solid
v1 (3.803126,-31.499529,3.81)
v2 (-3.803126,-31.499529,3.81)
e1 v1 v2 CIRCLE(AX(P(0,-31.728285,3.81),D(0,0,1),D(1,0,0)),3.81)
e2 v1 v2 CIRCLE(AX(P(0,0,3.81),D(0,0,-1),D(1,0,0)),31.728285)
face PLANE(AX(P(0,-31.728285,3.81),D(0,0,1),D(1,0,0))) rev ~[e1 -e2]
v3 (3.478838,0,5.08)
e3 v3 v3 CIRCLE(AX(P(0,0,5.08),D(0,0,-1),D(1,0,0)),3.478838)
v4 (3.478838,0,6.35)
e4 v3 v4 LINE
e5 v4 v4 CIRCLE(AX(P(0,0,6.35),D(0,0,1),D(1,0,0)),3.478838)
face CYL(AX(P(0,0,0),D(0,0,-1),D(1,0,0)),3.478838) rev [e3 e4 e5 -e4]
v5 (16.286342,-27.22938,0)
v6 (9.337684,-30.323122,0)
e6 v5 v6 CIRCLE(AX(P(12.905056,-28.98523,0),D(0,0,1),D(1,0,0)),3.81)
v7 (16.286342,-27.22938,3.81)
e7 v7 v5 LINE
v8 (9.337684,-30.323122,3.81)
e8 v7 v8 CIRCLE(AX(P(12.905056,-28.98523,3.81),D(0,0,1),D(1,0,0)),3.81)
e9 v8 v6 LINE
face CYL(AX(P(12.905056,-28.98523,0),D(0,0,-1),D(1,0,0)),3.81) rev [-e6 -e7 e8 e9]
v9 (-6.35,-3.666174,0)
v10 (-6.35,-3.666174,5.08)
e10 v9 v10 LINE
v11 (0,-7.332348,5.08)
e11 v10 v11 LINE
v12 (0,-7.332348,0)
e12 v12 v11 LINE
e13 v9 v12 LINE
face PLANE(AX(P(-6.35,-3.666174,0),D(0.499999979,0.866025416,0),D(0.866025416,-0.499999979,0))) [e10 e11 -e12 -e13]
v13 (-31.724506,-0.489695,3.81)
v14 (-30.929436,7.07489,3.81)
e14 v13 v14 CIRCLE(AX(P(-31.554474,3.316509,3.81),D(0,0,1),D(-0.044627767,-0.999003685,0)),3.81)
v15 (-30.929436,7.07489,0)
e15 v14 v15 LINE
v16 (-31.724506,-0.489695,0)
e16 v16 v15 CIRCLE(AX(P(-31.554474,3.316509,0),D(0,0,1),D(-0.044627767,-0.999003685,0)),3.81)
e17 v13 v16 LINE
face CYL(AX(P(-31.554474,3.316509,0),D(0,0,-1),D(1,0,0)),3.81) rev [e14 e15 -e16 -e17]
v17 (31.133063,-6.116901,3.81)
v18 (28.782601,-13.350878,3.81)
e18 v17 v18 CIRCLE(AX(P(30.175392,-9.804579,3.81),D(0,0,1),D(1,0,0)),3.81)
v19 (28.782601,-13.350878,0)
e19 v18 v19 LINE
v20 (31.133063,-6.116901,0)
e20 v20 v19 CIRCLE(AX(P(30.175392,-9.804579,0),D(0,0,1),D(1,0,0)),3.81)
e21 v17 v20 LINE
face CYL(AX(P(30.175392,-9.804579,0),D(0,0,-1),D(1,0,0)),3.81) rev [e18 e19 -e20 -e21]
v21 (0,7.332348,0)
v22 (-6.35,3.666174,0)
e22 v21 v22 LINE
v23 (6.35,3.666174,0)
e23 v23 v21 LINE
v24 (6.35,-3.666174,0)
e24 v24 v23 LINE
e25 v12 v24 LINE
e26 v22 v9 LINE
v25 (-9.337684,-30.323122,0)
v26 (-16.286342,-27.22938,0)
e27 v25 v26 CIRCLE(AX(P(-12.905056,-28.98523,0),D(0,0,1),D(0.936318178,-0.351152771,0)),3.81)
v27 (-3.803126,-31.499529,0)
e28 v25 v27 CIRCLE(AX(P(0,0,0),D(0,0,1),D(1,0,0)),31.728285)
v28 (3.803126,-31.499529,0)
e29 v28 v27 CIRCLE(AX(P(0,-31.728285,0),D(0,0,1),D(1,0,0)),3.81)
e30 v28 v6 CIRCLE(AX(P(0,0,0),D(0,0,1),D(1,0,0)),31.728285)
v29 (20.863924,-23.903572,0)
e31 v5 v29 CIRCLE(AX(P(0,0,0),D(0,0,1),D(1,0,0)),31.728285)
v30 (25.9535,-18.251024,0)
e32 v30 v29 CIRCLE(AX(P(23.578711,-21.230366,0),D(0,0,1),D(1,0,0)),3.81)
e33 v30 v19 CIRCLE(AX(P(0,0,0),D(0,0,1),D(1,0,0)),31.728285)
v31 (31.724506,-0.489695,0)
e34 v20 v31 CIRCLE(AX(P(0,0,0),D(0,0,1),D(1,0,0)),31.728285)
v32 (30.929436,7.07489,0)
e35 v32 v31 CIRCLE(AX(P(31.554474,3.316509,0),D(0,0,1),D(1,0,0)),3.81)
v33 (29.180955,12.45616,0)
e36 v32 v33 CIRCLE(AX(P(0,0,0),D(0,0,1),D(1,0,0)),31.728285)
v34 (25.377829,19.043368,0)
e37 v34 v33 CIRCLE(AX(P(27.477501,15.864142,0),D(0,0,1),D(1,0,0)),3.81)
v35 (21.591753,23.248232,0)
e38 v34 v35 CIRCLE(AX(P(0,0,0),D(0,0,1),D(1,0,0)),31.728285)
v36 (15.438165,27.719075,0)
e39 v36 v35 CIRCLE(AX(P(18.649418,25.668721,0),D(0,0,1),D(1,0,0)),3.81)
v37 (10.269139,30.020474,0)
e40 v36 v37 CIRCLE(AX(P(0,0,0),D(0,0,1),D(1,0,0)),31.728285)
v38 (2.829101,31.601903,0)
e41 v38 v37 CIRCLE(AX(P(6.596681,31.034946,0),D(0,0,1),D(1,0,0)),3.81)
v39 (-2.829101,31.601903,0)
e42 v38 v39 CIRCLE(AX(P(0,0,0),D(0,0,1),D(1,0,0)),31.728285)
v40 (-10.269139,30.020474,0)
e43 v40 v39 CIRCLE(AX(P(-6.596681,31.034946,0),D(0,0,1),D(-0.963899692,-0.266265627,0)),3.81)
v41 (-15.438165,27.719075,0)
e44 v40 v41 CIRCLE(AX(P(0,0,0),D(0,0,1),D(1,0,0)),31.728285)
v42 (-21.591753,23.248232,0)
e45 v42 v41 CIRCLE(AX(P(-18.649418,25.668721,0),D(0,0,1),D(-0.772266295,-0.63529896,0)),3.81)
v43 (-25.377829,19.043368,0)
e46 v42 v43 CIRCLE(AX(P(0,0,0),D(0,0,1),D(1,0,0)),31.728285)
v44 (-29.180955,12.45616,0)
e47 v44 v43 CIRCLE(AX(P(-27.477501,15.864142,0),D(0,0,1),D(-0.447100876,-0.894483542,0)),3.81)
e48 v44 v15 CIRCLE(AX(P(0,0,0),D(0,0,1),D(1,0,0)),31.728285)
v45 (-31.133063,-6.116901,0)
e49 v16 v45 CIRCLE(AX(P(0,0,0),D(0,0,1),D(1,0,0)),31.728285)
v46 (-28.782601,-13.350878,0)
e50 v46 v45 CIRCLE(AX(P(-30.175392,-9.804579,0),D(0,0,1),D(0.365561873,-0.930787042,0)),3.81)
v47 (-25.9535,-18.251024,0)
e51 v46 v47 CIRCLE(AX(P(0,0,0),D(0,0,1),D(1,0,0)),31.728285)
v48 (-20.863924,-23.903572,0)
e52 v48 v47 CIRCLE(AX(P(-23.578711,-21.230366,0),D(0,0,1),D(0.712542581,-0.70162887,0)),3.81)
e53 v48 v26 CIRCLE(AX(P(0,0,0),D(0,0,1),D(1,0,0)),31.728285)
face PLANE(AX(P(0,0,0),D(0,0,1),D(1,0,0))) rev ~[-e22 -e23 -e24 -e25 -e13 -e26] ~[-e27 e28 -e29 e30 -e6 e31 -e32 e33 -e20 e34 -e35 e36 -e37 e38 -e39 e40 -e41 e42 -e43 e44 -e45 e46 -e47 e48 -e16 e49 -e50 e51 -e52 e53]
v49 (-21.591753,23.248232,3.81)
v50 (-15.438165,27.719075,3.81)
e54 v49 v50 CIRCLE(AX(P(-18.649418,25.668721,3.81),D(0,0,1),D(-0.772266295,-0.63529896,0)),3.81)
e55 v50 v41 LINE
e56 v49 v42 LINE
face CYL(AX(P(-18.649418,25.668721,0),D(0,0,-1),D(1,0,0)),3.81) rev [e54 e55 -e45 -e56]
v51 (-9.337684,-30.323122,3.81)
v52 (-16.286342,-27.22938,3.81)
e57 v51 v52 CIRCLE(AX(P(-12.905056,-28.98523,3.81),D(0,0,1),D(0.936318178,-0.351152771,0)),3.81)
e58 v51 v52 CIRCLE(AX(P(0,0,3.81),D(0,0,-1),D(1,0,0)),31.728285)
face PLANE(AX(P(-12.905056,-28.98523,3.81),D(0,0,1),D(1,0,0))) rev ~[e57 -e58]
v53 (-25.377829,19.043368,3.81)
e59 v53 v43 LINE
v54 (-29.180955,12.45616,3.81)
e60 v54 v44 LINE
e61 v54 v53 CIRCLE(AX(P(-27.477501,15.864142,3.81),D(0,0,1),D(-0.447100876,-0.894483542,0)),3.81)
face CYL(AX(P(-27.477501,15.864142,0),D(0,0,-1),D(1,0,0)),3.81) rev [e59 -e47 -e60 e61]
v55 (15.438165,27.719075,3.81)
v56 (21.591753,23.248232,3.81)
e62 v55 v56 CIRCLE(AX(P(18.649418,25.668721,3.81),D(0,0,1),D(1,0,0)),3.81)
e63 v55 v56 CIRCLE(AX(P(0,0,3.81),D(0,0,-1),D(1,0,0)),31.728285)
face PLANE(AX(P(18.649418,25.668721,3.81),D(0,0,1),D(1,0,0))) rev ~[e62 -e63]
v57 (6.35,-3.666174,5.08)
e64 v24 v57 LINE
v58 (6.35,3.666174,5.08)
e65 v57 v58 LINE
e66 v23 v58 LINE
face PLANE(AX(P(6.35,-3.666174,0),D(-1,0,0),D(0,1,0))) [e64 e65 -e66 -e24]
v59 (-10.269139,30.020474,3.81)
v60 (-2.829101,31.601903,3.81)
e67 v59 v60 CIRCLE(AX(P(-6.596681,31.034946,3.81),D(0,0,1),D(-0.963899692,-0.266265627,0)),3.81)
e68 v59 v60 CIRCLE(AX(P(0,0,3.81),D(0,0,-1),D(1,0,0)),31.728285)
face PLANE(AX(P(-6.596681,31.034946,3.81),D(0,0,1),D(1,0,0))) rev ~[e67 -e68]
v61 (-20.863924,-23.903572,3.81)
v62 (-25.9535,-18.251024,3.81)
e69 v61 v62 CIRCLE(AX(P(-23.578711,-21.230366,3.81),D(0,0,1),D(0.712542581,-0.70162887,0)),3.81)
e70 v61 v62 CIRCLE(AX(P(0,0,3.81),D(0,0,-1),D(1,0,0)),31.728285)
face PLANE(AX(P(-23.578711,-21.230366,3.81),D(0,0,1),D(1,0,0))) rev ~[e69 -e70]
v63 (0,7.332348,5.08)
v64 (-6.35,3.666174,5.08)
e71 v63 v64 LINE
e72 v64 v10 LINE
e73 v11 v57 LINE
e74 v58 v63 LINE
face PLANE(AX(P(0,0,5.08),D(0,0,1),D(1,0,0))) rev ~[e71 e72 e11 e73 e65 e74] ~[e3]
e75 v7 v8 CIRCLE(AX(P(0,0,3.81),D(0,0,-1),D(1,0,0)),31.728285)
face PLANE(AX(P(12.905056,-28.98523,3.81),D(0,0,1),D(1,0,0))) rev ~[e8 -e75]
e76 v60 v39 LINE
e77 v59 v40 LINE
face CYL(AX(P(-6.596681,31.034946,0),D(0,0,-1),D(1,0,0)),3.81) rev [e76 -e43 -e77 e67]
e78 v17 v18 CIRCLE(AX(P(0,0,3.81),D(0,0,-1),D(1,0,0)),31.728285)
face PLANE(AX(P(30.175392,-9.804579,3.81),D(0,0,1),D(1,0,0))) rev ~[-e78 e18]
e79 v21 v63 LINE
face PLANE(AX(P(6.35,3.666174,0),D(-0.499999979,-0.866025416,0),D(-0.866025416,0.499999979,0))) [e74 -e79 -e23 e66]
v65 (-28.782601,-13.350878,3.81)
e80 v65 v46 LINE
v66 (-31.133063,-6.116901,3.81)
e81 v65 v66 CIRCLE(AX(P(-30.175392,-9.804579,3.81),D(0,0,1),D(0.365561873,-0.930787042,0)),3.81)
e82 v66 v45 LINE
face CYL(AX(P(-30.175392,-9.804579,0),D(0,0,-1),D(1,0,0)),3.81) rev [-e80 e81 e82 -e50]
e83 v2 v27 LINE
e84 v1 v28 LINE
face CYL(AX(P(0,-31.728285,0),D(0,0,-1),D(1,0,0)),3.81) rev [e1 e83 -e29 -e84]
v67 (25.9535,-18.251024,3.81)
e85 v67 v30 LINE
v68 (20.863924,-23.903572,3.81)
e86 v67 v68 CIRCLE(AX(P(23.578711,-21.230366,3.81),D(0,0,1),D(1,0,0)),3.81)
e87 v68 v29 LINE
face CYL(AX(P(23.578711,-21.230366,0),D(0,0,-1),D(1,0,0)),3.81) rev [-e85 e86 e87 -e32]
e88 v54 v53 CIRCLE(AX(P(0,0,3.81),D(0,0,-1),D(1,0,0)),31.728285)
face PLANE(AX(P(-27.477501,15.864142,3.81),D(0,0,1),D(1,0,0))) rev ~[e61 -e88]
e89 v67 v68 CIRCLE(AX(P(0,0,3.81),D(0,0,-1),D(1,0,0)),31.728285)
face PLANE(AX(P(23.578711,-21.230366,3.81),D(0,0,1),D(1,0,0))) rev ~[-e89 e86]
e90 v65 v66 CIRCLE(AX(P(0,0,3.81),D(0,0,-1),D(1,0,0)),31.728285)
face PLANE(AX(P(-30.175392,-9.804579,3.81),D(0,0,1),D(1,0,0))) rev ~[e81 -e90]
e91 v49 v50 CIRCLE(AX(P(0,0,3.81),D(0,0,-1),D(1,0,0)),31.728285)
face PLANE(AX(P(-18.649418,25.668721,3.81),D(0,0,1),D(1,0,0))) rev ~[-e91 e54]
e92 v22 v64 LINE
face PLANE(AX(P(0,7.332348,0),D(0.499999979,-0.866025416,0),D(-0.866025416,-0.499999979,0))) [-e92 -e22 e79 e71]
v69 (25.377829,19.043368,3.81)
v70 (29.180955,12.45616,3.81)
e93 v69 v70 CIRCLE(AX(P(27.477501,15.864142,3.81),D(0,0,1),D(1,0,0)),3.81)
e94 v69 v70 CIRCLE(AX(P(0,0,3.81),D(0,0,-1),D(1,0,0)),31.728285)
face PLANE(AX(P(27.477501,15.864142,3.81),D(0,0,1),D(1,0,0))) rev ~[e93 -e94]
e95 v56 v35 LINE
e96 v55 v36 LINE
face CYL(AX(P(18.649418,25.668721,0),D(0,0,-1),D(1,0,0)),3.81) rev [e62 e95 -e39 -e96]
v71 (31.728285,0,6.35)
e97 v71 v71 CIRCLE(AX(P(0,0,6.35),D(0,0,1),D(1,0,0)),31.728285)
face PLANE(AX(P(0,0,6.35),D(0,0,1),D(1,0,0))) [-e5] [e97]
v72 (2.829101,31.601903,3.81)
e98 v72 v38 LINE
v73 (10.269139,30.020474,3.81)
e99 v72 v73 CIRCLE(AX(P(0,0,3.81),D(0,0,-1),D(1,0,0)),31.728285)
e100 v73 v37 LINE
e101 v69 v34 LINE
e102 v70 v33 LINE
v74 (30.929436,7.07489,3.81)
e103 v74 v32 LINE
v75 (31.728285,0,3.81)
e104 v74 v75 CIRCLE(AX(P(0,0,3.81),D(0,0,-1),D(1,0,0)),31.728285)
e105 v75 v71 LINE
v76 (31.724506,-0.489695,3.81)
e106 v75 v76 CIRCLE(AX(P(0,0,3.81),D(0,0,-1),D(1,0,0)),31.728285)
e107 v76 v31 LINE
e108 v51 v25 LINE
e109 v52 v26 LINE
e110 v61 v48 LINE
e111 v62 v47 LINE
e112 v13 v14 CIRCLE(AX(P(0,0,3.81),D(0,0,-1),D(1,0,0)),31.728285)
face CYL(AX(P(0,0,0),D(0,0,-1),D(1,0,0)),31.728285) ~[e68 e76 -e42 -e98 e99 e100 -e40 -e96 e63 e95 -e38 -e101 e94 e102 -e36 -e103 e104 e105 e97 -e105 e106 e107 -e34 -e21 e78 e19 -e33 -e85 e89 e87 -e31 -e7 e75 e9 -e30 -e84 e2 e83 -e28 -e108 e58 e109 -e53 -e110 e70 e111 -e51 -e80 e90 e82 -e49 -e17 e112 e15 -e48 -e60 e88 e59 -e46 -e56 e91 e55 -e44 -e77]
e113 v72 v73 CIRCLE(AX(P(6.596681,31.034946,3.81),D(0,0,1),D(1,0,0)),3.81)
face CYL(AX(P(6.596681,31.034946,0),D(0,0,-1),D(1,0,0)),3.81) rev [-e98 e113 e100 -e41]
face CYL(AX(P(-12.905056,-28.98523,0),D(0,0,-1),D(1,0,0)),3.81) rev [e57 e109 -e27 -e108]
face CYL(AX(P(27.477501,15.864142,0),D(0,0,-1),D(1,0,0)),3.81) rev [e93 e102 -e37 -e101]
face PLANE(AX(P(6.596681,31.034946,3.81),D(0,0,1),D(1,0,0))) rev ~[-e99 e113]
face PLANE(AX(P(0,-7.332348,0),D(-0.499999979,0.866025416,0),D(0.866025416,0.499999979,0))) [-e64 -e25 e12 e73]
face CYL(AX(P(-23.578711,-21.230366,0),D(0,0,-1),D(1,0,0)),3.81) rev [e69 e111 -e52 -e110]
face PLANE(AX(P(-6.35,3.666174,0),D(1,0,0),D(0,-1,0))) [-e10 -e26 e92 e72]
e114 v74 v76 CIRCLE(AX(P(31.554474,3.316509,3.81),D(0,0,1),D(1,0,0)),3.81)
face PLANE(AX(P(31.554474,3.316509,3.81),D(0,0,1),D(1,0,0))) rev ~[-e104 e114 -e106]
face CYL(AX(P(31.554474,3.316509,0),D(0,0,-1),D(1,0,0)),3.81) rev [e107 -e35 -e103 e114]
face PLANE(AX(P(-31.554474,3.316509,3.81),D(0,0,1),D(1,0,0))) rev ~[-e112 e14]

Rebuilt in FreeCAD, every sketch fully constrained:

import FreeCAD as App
import Part
import Sketcher
from FreeCAD import Vector
Q = App.Units.Quantity

doc = App.newDocument("Part")
body = doc.addObject("PartDesign::Body", "Body")

sketch1 = body.newObject("Sketcher::SketchObject", "Sketch")
sketch1.AttachmentSupport = (doc.getObject("XY_Plane"), [""])
sketch1.MapMode = "FlatFace"
sketch1.addGeometry([
    Part.Circle(Vector(0, 0, 0), Vector(0, 0, 1), 31.7),
    Part.Circle(Vector(0, 0, 0), Vector(0, 0, 1), 3.5),
], False)
sketch1.addConstraint([
    Sketcher.Constraint("Coincident", 0, 3, -1, 1),
    Sketcher.Constraint("Coincident", 1, 3, -1, 1),
    Sketcher.Constraint("Diameter", 0, Q("63.45657 mm")),
    Sketcher.Constraint("Diameter", 1, Q("6.957676 mm")),
])
pad1 = body.newObject("PartDesign::Pad", "Pad")
pad1.Profile = sketch1
pad1.Length = Q("0.25 in")

sketch2 = body.newObject("Sketcher::SketchObject", "Sketch001")
sketch2.AttachmentSupport = (doc.getObject("XY_Plane"), [""])
sketch2.MapMode = "FlatFace"
sketch2.addGeometry([
    Part.LineSegment(Vector(6, -4, 0), Vector(6, 4, 0)),
    Part.LineSegment(Vector(6, 4, 0), Vector(0, 7, 0)),
    Part.LineSegment(Vector(0, 7, 0), Vector(-6, 4, 0)),
    Part.LineSegment(Vector(-6, 4, 0), Vector(-6, -4, 0)),
    Part.LineSegment(Vector(-6, -4, 0), Vector(0, -7, 0)),
    Part.LineSegment(Vector(0, -7, 0), Vector(6, -4, 0)),
], False)
sketch2.addConstraint([
    Sketcher.Constraint("Coincident", 0, 2, 1, 1),
    Sketcher.Constraint("Coincident", 1, 2, 2, 1),
    Sketcher.Constraint("Coincident", 2, 2, 3, 1),
    Sketcher.Constraint("Coincident", 3, 2, 4, 1),
    Sketcher.Constraint("Coincident", 4, 2, 5, 1),
    Sketcher.Constraint("Coincident", 5, 2, 0, 1),
    Sketcher.Constraint("Vertical", 0),
    Sketcher.Constraint("Vertical", 3),
    Sketcher.Constraint("Symmetric", 0, 2, 3, 2, -1, 1),
    Sketcher.Constraint("Symmetric", 1, 2, 4, 2, -1, 1),
    Sketcher.Constraint("PointOnObject", 1, 2, -2),
    Sketcher.Constraint("Parallel", 2, 5),
    Sketcher.Constraint("Horizontal", 0, 2, 2, 2),
    Sketcher.Constraint("Angle", 1, Q("150.000001 deg")),
    Sketcher.Constraint("DistanceX", 2, 2, 0, 2, Q("0.5 in")),
    Sketcher.Constraint("DistanceY", 0, 1, 0, 2, Q("7.332348 mm")),
])
pocket1 = body.newObject("PartDesign::Pocket", "Pocket")
pocket1.Profile = sketch2
pocket1.Length = Q("0.2 in")
pocket1.Reversed = True

sketch3 = body.newObject("Sketcher::SketchObject", "Sketch002")
sketch3.AttachmentSupport = (doc.getObject("XY_Plane"), [""])
sketch3.MapMode = "FlatFace"
sketch3.addGeometry([
    Part.Circle(Vector(0, -31.7, 0), Vector(0, 0, 1), 3.8),
    Part.Circle(Vector(12.9, -29, 0), Vector(0, 0, 1), 3.8),
    Part.Circle(Vector(23.6, -21.2, 0), Vector(0, 0, 1), 3.8),
    Part.Circle(Vector(30.2, -9.8, 0), Vector(0, 0, 1), 3.8),
    Part.Circle(Vector(31.6, 3.3, 0), Vector(0, 0, 1), 3.8),
    Part.Circle(Vector(27.5, 15.9, 0), Vector(0, 0, 1), 3.8),
    Part.Circle(Vector(18.6, 25.7, 0), Vector(0, 0, 1), 3.8),
    Part.Circle(Vector(6.6, 31, 0), Vector(0, 0, 1), 3.8),
    Part.Circle(Vector(-6.6, 31, 0), Vector(0, 0, 1), 3.8),
    Part.Circle(Vector(-18.6, 25.7, 0), Vector(0, 0, 1), 3.8),
    Part.Circle(Vector(-27.5, 15.9, 0), Vector(0, 0, 1), 3.8),
    Part.Circle(Vector(-31.6, 3.3, 0), Vector(0, 0, 1), 3.8),
    Part.Circle(Vector(-30.2, -9.8, 0), Vector(0, 0, 1), 3.8),
    Part.Circle(Vector(-23.6, -21.2, 0), Vector(0, 0, 1), 3.8),
    Part.Circle(Vector(-12.9, -29, 0), Vector(0, 0, 1), 3.8),
], False)
sketch3.addConstraint([
    Sketcher.Constraint("Equal", 0, 1),
    Sketcher.Constraint("Equal", 1, 2),
    Sketcher.Constraint("Equal", 2, 3),
    Sketcher.Constraint("Equal", 3, 4),
    Sketcher.Constraint("Equal", 4, 5),
    Sketcher.Constraint("Equal", 5, 6),
    Sketcher.Constraint("Equal", 6, 7),
    Sketcher.Constraint("Equal", 7, 8),
    Sketcher.Constraint("Equal", 8, 9),
    Sketcher.Constraint("Equal", 9, 10),
    Sketcher.Constraint("Equal", 10, 11),
    Sketcher.Constraint("Equal", 11, 12),
    Sketcher.Constraint("Equal", 12, 13),
    Sketcher.Constraint("Equal", 13, 14),
    Sketcher.Constraint("Symmetric", 7, 3, 8, 3, -2),
    Sketcher.Constraint("Symmetric", 6, 3, 9, 3, -2),
    Sketcher.Constraint("Symmetric", 5, 3, 10, 3, -2),
    Sketcher.Constraint("Symmetric", 4, 3, 11, 3, -2),
    Sketcher.Constraint("Symmetric", 3, 3, 12, 3, -2),
    Sketcher.Constraint("Symmetric", 2, 3, 13, 3, -2),
    Sketcher.Constraint("Symmetric", 1, 3, 14, 3, -2),
    Sketcher.Constraint("PointOnObject", 0, 3, -2),
    Sketcher.Constraint("Diameter", 0, Q("0.3 in")),
    Sketcher.Constraint("DistanceX", -1, 1, 5, 3, Q("27.477501 mm")),
    Sketcher.Constraint("DistanceY", 3, 3, 6, 3, Q("35.4733 mm")),
    Sketcher.Constraint("DistanceX", 8, 3, 6, 3, Q("25.246099 mm")),
    Sketcher.Constraint("DistanceY", 1, 3, -1, 1, Q("28.98523 mm")),
    Sketcher.Constraint("DistanceX", -1, 1, 2, 3, Q("23.578711 mm")),
    Sketcher.Constraint("DistanceX", -1, 1, 3, 3, Q("30.175392 mm")),
    Sketcher.Constraint("DistanceY", 3, 3, -1, 1, Q("9.804579 mm")),
    Sketcher.Constraint("DistanceY", -1, 1, 4, 3, Q("3.316509 mm")),
    Sketcher.Constraint("DistanceY", -1, 1, 5, 3, Q("15.864142 mm")),
    Sketcher.Constraint("DistanceX", -1, 1, 6, 3, Q("18.649418 mm")),
    Sketcher.Constraint("DistanceY", 0, 3, 2, 3, Q("10.497919 mm")),
    Sketcher.Constraint("DistanceX", 9, 3, 4, 3, Q("50.203892 mm")),
    Sketcher.Constraint("DistanceX", 14, 3, 1, 3, Q("25.810112 mm")),
    Sketcher.Constraint("DistanceY", 0, 3, -1, 1, Q("31.728285 mm")),
    Sketcher.Constraint("DistanceY", -1, 1, 7, 3, Q("31.034946 mm")),
])
pocket2 = body.newObject("PartDesign::Pocket", "Pocket001")
pocket2.Profile = sketch3
pocket2.Length = Q("0.15 in")
pocket2.Reversed = True

doc.recompute()
